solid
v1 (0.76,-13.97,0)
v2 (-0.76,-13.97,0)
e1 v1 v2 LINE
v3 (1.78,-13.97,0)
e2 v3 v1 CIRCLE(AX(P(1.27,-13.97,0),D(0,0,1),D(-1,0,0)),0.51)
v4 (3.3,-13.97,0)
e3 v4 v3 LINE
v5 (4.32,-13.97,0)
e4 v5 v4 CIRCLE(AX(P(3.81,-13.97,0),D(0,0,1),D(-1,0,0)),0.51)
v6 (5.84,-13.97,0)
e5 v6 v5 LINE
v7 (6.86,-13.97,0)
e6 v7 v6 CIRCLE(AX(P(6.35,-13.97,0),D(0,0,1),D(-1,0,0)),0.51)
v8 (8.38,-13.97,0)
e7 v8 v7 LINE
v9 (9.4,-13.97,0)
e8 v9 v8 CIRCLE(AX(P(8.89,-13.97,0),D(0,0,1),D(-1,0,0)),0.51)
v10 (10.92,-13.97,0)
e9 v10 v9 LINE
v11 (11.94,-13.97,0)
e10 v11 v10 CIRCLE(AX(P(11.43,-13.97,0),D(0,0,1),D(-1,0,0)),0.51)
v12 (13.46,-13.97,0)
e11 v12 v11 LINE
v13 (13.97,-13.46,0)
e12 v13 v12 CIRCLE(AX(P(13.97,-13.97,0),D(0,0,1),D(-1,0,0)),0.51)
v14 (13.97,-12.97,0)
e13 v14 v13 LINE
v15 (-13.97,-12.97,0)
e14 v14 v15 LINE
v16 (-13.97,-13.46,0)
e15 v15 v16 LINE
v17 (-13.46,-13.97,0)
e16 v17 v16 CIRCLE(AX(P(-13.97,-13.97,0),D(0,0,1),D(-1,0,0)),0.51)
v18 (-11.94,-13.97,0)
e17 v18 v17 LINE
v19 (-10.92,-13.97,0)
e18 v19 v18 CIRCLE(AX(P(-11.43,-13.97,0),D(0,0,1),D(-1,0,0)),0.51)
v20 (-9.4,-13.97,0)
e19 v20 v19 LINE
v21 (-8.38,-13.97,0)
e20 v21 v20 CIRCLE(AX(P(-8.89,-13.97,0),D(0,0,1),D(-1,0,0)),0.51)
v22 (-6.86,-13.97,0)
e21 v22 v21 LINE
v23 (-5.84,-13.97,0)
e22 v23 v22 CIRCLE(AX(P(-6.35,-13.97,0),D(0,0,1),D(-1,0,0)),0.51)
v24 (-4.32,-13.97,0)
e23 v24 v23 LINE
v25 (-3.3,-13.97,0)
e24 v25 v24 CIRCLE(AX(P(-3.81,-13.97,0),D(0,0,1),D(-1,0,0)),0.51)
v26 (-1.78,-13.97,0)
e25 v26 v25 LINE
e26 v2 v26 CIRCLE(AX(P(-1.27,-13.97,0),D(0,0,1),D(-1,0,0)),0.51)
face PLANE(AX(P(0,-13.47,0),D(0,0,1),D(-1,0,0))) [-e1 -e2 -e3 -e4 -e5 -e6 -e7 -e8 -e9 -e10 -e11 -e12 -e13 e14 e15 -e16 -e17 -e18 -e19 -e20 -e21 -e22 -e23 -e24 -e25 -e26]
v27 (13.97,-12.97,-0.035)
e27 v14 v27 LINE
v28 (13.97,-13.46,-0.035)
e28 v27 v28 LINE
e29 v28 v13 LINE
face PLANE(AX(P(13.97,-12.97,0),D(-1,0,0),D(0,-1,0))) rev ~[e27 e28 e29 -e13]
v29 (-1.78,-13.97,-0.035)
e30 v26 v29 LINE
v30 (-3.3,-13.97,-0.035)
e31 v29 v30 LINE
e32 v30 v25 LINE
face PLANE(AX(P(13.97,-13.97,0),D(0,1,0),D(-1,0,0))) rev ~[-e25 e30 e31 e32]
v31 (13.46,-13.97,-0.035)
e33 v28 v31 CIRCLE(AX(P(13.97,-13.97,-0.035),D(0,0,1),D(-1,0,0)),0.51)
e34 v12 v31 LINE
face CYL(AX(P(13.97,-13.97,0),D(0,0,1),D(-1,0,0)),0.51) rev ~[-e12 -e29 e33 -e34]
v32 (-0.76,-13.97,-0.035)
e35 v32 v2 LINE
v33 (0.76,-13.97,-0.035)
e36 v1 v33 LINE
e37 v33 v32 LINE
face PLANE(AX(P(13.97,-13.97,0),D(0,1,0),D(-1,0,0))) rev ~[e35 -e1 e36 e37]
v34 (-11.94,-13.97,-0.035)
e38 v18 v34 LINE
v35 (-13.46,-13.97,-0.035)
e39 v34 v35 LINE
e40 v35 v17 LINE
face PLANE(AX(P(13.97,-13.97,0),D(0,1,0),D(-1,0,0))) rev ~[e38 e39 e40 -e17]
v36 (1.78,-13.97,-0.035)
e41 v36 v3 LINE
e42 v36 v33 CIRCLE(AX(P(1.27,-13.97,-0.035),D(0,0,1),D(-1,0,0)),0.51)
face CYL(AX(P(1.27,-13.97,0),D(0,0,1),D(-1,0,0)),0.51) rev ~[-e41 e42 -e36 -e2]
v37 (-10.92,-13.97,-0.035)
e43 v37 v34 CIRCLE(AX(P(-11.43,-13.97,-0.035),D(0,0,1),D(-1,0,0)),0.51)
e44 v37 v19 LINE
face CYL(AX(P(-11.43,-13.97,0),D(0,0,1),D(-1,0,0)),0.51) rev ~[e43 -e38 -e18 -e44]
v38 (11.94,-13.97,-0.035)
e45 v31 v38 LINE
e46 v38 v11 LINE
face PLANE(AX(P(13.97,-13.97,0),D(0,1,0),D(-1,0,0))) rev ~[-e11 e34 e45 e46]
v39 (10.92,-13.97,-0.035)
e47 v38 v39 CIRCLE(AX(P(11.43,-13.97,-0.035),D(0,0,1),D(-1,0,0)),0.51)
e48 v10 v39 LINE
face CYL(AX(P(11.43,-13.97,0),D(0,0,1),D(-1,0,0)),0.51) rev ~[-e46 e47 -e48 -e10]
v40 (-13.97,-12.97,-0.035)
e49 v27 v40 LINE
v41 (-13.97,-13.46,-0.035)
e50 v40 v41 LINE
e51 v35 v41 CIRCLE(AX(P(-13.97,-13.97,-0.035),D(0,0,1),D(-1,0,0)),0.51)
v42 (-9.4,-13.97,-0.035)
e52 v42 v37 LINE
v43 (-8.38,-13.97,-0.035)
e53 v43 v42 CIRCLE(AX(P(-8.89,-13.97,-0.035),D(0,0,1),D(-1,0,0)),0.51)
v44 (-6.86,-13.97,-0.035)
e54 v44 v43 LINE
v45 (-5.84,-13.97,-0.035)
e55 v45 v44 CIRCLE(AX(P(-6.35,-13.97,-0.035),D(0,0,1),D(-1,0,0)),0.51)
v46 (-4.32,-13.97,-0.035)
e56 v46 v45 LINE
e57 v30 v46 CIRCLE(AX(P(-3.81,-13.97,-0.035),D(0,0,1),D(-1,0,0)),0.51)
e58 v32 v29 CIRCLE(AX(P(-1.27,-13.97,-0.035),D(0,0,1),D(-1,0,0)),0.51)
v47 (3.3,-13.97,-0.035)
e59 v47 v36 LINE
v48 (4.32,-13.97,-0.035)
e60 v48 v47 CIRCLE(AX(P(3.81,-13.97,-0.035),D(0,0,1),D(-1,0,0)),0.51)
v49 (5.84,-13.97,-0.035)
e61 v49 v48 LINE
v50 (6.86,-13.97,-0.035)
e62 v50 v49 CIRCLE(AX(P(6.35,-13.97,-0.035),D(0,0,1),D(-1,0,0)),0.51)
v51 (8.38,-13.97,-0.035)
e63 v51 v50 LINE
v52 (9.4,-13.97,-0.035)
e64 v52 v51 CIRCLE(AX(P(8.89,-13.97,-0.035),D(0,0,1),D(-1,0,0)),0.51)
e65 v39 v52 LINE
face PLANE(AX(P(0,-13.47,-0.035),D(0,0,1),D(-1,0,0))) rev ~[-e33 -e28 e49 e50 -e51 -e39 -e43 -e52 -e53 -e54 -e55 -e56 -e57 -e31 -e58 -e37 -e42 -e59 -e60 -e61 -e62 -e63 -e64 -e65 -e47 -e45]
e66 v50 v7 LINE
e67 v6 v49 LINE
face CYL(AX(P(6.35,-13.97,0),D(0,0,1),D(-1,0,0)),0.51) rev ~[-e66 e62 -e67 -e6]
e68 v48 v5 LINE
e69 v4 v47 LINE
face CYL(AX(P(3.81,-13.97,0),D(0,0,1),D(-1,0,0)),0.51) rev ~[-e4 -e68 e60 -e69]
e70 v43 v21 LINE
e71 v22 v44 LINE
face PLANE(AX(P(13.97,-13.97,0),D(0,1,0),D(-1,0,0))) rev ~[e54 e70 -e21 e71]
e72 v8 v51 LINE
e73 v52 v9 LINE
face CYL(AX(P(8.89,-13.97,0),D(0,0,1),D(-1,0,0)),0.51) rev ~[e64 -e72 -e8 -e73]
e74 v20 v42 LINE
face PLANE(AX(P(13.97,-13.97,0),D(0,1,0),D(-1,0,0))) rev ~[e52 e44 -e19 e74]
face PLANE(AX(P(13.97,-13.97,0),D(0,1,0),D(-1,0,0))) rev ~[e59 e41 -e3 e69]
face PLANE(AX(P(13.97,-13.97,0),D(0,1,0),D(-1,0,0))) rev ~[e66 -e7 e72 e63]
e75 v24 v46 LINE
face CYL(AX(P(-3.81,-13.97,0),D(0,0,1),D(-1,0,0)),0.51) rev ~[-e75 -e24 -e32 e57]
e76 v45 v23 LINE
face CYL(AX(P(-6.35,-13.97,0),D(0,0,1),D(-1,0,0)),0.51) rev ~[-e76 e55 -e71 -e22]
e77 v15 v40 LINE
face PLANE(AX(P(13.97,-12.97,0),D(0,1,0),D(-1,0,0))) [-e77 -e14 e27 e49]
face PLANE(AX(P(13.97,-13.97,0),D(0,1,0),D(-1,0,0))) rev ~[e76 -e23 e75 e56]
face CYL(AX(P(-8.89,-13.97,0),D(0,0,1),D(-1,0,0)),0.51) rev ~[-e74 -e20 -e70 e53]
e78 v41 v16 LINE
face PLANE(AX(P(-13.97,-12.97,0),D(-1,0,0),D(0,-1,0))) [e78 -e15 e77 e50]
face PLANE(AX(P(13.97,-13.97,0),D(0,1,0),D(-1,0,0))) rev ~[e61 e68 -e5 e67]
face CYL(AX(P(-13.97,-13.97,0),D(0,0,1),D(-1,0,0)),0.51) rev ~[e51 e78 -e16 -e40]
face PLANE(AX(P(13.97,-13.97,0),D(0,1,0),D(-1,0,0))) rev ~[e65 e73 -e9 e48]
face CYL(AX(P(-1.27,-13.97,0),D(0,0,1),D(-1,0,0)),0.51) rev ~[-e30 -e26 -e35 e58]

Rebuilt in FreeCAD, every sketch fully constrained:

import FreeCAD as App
import Part
import Sketcher

V = App.Vector


def add_polygon(sketch, points):
    """Adds a closed chain of lines whose ends are joined by coincident constraints."""
    first, n = sketch.GeometryCount, len(points)
    for a, b in zip(points, points[1:] + points[:1]):
        sketch.addGeometry(Part.LineSegment(App.Vector(*a, 0), App.Vector(*b, 0)), False)
    for i in range(n):
        sketch.addConstraint(Sketcher.Constraint("Coincident", first + i, 2, first + (i + 1) % n, 1))

doc = App.newDocument("Part")
body = doc.addObject("PartDesign::Body", "Body")

# Sketch on XY plane
sketch1 = body.newObject("Sketcher::SketchObject", "Sketch")
sketch1.AttachmentSupport = (doc.getObject("XY_Plane"), [""])
sketch1.MapMode = "FlatFace"
add_polygon(sketch1, [(-14, 14), (-14, 13), (14, 13), (14, 14)])  # lines 0-3
sketch1.addConstraint(Sketcher.Constraint("Vertical", 0))
sketch1.addConstraint(Sketcher.Constraint("Horizontal", 1))
sketch1.addConstraint(Sketcher.Constraint("Vertical", 2))
sketch1.addConstraint(Sketcher.Constraint("Horizontal", 3))
sketch1.addConstraint(Sketcher.Constraint("DistanceY", 0, 2, 0, 1, 1.0))
sketch1.addConstraint(Sketcher.Constraint("DistanceX", 1, 1, 1, 2, 27.94))
sketch1.addConstraint(Sketcher.Constraint("DistanceX", 0, 2, -1, 1, 13.97))
sketch1.addConstraint(Sketcher.Constraint("DistanceY", -1, 1, 0, 2, 12.97))
pad1 = body.newObject("PartDesign::Pad", "Pad")
pad1.Profile = sketch1
pad1.Length = 0.035
pad1.Reversed = True

# Sketch on XY plane
sketch2 = body.newObject("Sketcher::SketchObject", "Sketch001")
sketch2.AttachmentSupport = (doc.getObject("XY_Plane"), [""])
sketch2.MapMode = "FlatFace"
sketch2.addGeometry(Part.Circle(V(-14, 14, 0), V(0, 0, 1), 0.5), False)
sketch2.addConstraint(Sketcher.Constraint("Diameter", 0, 1.02))
sketch2.addConstraint(Sketcher.Constraint("DistanceX", 0, 3, -1, 1, 13.97))
sketch2.addConstraint(Sketcher.Constraint("DistanceY", -1, 1, 0, 3, 13.97))
pocket1 = body.newObject("PartDesign::Pocket", "Pocket")
pocket1.Profile = sketch2
pocket1.Type = "ThroughAll"
doc.recompute()

linearpattern = body.newObject("PartDesign::LinearPattern", "LinearPattern")
linearpattern.Originals = [pocket1]
linearpattern.Direction = (doc.getObject("X_Axis"), [""])
linearpattern.Mode = "offset"
linearpattern.Offset = 2.54
linearpattern.Occurrences = 12
body.Tip = linearpattern
body2 = doc.addObject("PartDesign::Body", "Body001")
doc.recompute()

body.Placement = App.Placement(V(0, 0, 0), App.Rotation(V(0, 0, 1), 180))
boolean = body2.newObject("PartDesign::Boolean", "Boolean")
boolean.Type = "Fuse"
boolean.addObjects([body])

doc.recompute()
